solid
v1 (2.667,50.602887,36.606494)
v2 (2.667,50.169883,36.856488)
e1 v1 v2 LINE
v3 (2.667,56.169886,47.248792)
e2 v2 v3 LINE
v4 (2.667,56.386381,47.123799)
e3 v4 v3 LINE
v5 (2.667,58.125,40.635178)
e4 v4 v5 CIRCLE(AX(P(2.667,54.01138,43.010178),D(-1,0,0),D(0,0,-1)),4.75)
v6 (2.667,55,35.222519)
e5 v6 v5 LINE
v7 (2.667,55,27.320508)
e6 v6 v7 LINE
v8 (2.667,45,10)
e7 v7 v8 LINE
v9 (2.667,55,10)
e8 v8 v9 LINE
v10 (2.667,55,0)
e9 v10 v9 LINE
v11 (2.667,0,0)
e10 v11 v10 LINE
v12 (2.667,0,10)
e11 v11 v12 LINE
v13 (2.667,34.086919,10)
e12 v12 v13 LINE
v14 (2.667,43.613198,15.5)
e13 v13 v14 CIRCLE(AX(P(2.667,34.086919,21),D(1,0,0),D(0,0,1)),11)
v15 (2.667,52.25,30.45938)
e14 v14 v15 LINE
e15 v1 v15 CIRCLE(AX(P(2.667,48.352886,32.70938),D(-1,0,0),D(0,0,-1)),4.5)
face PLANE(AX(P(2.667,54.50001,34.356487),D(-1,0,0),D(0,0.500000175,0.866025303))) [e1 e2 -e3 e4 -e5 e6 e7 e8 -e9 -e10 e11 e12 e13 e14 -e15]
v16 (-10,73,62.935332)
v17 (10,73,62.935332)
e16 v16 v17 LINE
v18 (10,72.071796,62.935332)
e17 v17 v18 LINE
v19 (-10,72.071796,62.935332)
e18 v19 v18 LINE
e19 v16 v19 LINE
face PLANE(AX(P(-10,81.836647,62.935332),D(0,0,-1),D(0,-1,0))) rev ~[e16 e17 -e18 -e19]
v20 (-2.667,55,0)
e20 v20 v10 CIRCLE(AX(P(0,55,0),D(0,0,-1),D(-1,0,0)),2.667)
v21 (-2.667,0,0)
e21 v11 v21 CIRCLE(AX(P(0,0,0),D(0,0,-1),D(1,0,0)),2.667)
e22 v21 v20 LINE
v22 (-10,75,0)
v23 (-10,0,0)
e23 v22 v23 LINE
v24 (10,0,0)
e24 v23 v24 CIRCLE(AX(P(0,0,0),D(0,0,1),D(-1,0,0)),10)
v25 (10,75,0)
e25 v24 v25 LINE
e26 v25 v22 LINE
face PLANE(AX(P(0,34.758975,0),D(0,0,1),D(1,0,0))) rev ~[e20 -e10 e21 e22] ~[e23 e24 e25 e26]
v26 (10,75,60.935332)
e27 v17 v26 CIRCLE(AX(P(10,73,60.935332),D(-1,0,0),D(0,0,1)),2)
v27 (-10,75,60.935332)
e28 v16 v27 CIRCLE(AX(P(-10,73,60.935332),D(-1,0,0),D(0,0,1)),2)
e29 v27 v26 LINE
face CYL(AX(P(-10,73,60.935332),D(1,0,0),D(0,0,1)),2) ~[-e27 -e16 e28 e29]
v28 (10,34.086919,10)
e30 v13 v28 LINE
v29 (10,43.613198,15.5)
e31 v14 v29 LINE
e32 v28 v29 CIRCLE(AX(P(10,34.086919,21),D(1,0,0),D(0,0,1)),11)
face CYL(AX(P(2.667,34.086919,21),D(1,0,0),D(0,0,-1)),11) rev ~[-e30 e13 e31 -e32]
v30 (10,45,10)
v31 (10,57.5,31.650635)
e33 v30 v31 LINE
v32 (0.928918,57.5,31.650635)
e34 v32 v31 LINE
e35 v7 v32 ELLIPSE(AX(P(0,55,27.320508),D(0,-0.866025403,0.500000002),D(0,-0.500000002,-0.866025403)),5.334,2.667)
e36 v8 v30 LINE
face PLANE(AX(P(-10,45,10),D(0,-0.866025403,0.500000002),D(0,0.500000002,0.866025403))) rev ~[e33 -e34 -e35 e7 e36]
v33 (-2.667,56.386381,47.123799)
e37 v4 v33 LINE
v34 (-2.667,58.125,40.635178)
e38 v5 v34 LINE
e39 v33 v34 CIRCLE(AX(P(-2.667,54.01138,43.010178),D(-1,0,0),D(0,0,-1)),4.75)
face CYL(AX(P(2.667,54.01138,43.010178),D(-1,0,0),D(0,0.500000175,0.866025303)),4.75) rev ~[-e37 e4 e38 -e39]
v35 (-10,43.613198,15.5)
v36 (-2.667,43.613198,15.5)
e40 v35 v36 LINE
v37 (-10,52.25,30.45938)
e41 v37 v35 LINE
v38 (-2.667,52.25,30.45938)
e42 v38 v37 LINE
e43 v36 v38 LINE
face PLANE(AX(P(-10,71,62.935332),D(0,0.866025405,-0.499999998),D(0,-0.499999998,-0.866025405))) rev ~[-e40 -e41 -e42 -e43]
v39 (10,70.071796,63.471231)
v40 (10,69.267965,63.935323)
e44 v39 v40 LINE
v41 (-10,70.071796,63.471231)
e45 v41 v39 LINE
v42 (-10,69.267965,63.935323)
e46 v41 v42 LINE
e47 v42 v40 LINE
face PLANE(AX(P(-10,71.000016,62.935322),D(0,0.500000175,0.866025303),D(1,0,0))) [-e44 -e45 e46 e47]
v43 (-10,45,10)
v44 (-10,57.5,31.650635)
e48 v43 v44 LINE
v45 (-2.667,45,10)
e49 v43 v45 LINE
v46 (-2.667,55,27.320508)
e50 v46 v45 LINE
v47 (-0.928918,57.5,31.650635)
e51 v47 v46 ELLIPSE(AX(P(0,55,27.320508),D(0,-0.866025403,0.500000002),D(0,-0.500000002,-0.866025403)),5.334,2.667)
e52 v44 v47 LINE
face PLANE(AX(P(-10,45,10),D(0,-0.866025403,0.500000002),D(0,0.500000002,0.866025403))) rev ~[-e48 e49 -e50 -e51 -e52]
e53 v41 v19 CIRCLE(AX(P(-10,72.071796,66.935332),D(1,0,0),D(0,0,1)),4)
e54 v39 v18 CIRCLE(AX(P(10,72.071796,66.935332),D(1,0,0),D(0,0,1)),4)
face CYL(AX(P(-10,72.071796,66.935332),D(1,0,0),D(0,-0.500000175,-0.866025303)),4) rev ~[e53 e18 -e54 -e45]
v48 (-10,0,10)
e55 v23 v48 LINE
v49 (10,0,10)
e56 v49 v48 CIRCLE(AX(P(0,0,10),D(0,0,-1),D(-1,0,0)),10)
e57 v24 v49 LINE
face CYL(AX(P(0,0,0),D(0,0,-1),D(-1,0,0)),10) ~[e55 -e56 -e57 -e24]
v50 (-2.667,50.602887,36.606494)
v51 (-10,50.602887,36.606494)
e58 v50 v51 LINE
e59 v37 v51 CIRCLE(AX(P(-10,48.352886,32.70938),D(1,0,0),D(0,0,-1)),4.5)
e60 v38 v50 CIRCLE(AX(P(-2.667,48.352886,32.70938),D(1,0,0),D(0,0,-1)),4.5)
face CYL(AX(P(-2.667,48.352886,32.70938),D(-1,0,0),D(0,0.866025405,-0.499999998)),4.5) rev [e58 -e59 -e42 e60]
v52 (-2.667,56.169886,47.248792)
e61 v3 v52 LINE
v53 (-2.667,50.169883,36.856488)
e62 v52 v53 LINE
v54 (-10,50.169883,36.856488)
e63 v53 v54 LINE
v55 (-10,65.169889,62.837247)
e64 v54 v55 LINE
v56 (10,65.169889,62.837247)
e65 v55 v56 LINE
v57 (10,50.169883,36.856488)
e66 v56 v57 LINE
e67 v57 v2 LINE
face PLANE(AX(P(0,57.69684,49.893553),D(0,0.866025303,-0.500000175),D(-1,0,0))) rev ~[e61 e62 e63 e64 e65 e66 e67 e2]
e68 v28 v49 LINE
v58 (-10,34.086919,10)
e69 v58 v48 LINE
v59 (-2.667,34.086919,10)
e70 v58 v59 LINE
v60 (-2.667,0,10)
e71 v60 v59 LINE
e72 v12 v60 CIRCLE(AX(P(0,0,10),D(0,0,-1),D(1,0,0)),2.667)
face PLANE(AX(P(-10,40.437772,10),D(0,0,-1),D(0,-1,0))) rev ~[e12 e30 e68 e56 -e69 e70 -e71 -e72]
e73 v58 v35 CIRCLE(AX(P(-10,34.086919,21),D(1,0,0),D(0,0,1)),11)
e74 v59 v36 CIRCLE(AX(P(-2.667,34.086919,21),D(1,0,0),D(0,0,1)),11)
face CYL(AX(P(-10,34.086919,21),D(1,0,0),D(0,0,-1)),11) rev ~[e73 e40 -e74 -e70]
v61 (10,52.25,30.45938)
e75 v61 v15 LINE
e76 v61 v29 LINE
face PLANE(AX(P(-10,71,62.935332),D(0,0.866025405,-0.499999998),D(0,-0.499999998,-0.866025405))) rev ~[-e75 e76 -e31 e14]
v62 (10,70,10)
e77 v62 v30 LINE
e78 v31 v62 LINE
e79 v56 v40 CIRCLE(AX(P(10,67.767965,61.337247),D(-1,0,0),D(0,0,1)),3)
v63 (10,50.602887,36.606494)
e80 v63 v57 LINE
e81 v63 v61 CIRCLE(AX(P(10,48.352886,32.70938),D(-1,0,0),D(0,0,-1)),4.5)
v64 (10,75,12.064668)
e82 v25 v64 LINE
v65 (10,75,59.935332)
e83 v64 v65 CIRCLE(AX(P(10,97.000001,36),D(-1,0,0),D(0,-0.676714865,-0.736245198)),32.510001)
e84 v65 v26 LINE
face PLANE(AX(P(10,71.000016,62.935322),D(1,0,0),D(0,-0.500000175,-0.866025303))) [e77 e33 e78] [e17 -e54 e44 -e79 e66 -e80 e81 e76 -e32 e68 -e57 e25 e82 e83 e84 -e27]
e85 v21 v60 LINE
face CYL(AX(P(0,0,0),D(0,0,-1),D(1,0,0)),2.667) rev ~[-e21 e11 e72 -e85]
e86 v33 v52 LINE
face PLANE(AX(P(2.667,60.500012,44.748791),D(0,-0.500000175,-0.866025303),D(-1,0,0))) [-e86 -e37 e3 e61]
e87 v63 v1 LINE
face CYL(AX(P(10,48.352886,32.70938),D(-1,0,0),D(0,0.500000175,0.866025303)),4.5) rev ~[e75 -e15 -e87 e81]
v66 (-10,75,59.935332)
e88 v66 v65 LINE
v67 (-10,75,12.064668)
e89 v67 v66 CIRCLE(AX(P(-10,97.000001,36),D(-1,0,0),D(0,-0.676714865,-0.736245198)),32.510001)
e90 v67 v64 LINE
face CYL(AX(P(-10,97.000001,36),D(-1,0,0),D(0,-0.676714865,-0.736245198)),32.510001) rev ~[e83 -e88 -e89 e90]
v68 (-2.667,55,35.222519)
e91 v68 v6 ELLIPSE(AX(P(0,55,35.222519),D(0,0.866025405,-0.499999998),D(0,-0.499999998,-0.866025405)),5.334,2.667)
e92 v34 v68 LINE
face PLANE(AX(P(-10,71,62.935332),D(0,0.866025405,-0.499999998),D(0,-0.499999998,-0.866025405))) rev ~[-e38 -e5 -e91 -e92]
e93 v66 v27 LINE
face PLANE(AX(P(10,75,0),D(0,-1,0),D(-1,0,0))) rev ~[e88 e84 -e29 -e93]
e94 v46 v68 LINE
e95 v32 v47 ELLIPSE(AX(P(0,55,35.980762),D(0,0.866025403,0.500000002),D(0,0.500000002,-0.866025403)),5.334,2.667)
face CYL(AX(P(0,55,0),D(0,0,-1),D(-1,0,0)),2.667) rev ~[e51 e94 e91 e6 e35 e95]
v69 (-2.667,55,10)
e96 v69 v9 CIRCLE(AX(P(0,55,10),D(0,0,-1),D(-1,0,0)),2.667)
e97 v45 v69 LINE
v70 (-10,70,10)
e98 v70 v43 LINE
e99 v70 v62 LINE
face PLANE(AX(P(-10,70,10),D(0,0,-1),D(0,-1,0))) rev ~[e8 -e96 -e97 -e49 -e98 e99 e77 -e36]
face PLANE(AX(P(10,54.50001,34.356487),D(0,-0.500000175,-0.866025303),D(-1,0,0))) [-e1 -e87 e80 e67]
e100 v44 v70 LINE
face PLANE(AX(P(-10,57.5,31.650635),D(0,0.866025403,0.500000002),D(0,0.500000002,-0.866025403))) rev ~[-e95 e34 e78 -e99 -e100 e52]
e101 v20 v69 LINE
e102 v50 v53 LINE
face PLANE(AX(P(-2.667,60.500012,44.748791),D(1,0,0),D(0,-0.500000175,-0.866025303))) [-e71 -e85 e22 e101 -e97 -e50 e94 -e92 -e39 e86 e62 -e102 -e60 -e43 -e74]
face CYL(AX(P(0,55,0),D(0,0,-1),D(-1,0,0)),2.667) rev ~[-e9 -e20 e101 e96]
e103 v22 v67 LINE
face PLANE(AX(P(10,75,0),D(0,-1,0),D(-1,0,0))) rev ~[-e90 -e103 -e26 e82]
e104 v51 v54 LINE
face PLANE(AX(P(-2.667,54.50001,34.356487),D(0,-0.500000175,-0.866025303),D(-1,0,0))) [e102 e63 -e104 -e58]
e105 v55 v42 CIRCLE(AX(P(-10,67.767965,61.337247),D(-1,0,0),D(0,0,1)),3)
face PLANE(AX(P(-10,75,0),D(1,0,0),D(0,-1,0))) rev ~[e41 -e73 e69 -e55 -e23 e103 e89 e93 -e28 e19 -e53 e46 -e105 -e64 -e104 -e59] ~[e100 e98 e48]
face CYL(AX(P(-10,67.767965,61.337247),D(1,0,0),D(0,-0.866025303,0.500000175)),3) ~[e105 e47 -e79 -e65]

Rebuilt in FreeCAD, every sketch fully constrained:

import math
import FreeCAD as App
import Part
import Sketcher

V = App.Vector
Q = App.Units.Quantity


def edges_at(feature, points):
    """Names of the edges that pass closest to the given points."""
    edges = feature.Shape.Edges
    near = lambda p: min(range(len(edges)), key=lambda i: edges[i].distToShape(Part.Vertex(*p))[0])
    return sorted({f"Edge{near(p) + 1}" for p in points})

doc = App.newDocument("Part")
body = doc.addObject("PartDesign::Body", "Body")

sketch1 = body.newObject("Sketcher::SketchObject", "Sketch")
sketch1.AttachmentSupport = (doc.getObject("XY_Plane"), [""])
sketch1.MapMode = "FlatFace"
sketch1.addGeometry([
    Part.LineSegment(V(-10, 75, 0), V(-10, 0, 0)),
    Part.ArcOfCircle(Part.Circle(V(0, 0, 0), V(0, 0, 1), 10), math.radians(180), math.radians(360)),
    Part.LineSegment(V(10, 0, 0), V(10, 75, 0)),
    Part.LineSegment(V(10, 75, 0), V(-10, 75, 0)),
], False)
sketch1.addConstraint([
    Sketcher.Constraint("Tangent", 0, 2, 1, 1),
    Sketcher.Constraint("Tangent", 1, 2, 2, 1),
    Sketcher.Constraint("Coincident", 2, 2, 3, 1),
    Sketcher.Constraint("Coincident", 3, 2, 0, 1),
    Sketcher.Constraint("Vertical", 0),
    Sketcher.Constraint("Vertical", 2),
    Sketcher.Constraint("Horizontal", 3),
    Sketcher.Constraint("Coincident", 1, 3, -1, 1),
    Sketcher.Constraint("Radius", 1, 10.0),
    Sketcher.Constraint("DistanceY", 0, 2, 0, 1, 75.0),
])
pad1 = body.newObject("PartDesign::Pad", "Pad")
pad1.Profile = sketch1
pad1.Length = 67.31

sketch2 = body.newObject("Sketcher::SketchObject", "Sketch001")
sketch2.AttachmentSupport = (doc.getObject("YZ_Plane"), [""])
sketch2.MapMode = "FlatFace"
sketch2.AttachmentOffset = App.Placement(V(0, 0, -10), App.Rotation())
sketch2.addGeometry([
    Part.LineSegment(V(71, 63, 0), V(40, 10, 0)),
    Part.LineSegment(V(40, 10, 0), V(-27, 10, 0)),
    Part.LineSegment(V(-27, 10, 0), V(-27, 74, 0)),
    Part.LineSegment(V(-27, 74, 0), V(82, 74, 0)),
    Part.LineSegment(V(82, 74, 0), V(82, 63, 0)),
    Part.LineSegment(V(82, 63, 0), V(71, 63, 0)),
    Part.ArcOfCircle(Part.Circle(V(97, 36, 0), V(0, 0, 1), 33), math.radians(133), math.radians(227)),
    Part.LineSegment(V(75, 60, 0), V(97, 36, 0)),
    Part.LineSegment(V(97, 36, 0), V(75, 12, 0)),
    Part.LineSegment(V(70, 10, 0), V(45, 10, 0)),
    Part.LineSegment(V(45, 10, 0), V(58, 32, 0)),
    Part.LineSegment(V(58, 32, 0), V(70, 10, 0)),
], False)
sketch2.addConstraint([
    Sketcher.Constraint("Coincident", 0, 2, 1, 1),
    Sketcher.Constraint("Coincident", 1, 2, 2, 1),
    Sketcher.Constraint("Coincident", 2, 2, 3, 1),
    Sketcher.Constraint("Coincident", 3, 2, 4, 1),
    Sketcher.Constraint("Coincident", 4, 2, 5, 1),
    Sketcher.Constraint("Coincident", 5, 2, 0, 1),
    Sketcher.Constraint("Coincident", 6, 1, 7, 1),
    Sketcher.Constraint("Coincident", 7, 2, 8, 1),
    Sketcher.Constraint("Coincident", 8, 2, 6, 2),
    Sketcher.Constraint("Coincident", 9, 2, 10, 1),
    Sketcher.Constraint("Coincident", 10, 2, 11, 1),
    Sketcher.Constraint("Coincident", 11, 2, 9, 1),
    Sketcher.Constraint("Horizontal", 1),
    Sketcher.Constraint("Vertical", 2),
    Sketcher.Constraint("Horizontal", 3),
    Sketcher.Constraint("Vertical", 4),
    Sketcher.Constraint("Horizontal", 5),
    Sketcher.Constraint("Horizontal", 9),
    Sketcher.Constraint("Coincident", 7, 2, 6, 3),
    Sketcher.Constraint("Parallel", 0, 10),
    Sketcher.Constraint("Horizontal", 1, 2, 9, 2),
    Sketcher.Constraint("Vertical", 6, 1, 8, 2),
    Sketcher.Constraint("Equal", 10, 11),
    Sketcher.Constraint("DistanceX", 9, 2, 9, 1, 25.0),
    Sketcher.Constraint("Angle", 0, Q("-120 deg")),
    Sketcher.Constraint("Radius", 6, 32.510001),
    Sketcher.Constraint("DistanceX", -1, 1, 6, 3, 97.000001),
    Sketcher.Constraint("DistanceY", -1, 1, 6, 3, 36.0),
    Sketcher.Constraint("DistanceY", -1, 1, 0, 2, 10.0),
    Sketcher.Constraint("DistanceX", -1, 1, 5, 2, 71.0),
    Sketcher.Constraint("DistanceX", -1, 1, 6, 1, 75.0),
    Sketcher.Constraint("DistanceX", -1, 1, 9, 2, 45.0),
    Sketcher.Constraint("DistanceY", 6, 1, 5, 2, 3.0),
    Sketcher.Constraint("DistanceX", 3, 1, 3, 2, 108.783571),
    Sketcher.Constraint("DistanceY", 2, 1, 2, 2, 64.479118),
    Sketcher.Constraint("DistanceX", 1, 2, 1, 1, 67.384696),
])
pocket1 = body.newObject("PartDesign::Pocket", "Pocket")
pocket1.Profile = sketch2
pocket1.Type = "ThroughAll"
pocket1.Reversed = True

sketch3 = body.newObject("Sketcher::SketchObject", "Sketch002")
sketch3.AttachmentSupport = (doc.getObject("XY_Plane"), [""])
sketch3.MapMode = "FlatFace"
sketch3.addGeometry([
    Part.ArcOfCircle(Part.Circle(V(0, 0, 0), V(0, 0, 1), 2.7), math.radians(180), math.radians(360)),
    Part.LineSegment(V(-2.7, 0, 0), V(-2.7, 55, 0)),
    Part.ArcOfCircle(Part.Circle(V(0, 55, 0), V(0, 0, 1), 2.7), math.radians(0), math.radians(180)),
    Part.LineSegment(V(2.7, 55, 0), V(2.7, 0, 0)),
], False)
sketch3.addConstraint([
    Sketcher.Constraint("Tangent", 0, 1, 1, 1),
    Sketcher.Constraint("Tangent", 1, 2, 2, 2),
    Sketcher.Constraint("Tangent", 2, 1, 3, 1),
    Sketcher.Constraint("Tangent", 3, 2, 0, 2),
    Sketcher.Constraint("Vertical", 1),
    Sketcher.Constraint("Vertical", 3),
    Sketcher.Constraint("Coincident", 0, 3, -1, 1),
    Sketcher.Constraint("DistanceY", 1, 1, 1, 2, 55.0),
    Sketcher.Constraint("Radius", 0, 2.667),
])
pocket2 = body.newObject("PartDesign::Pocket", "Pocket001")
pocket2.Profile = sketch3
pocket2.Type = "ThroughAll"
pocket2.Reversed = True
doc.recompute()

fillet = body.newObject("PartDesign::Fillet", "Fillet")
fillet.Base = (pocket2, edges_at(pocket2, [(6.333, 40.438, 10), (-6.333, 40.438, 10)]))
fillet.Radius = 11

sketch4 = body.newObject("Sketcher::SketchObject", "Sketch003")
sketch4.Placement = App.Placement(V(0, 25.998202, -15.010069), App.Rotation(V(1, 0, 0), V(0, 0.500000175, 0.866025303), V(0, -0.866025303, 0.500000175), "ZXY"))
sketch4.addGeometry([
    Part.LineSegment(V(10, 90, 0), V(-10, 90, 0)),
    Part.LineSegment(V(-10, 90, 0), V(-10, 57, 0)),
    Part.LineSegment(V(-10, 57, 0), V(-3, 57, 0)),
    Part.LineSegment(V(-3, 57, 0), V(-3, 69, 0)),
    Part.LineSegment(V(-3, 69, 0), V(3, 69, 0)),
    Part.LineSegment(V(3, 69, 0), V(3, 57, 0)),
    Part.LineSegment(V(3, 57, 0), V(10, 57, 0)),
    Part.LineSegment(V(10, 57, 0), V(10, 90, 0)),
], False)
sketch4.addConstraint([
    Sketcher.Constraint("Coincident", 0, 2, 1, 1),
    Sketcher.Constraint("Coincident", 1, 2, 2, 1),
    Sketcher.Constraint("Coincident", 2, 2, 3, 1),
    Sketcher.Constraint("Coincident", 3, 2, 4, 1),
    Sketcher.Constraint("Coincident", 4, 2, 5, 1),
    Sketcher.Constraint("Coincident", 5, 2, 6, 1),
    Sketcher.Constraint("Coincident", 6, 2, 7, 1),
    Sketcher.Constraint("Coincident", 7, 2, 0, 1),
    Sketcher.Constraint("Horizontal", 0),
    Sketcher.Constraint("Vertical", 1),
    Sketcher.Constraint("Horizontal", 2),
    Sketcher.Constraint("Vertical", 3),
    Sketcher.Constraint("Horizontal", 4),
    Sketcher.Constraint("Vertical", 5),
    Sketcher.Constraint("Horizontal", 6),
    Sketcher.Constraint("Vertical", 7),
    Sketcher.Constraint("Symmetric", 2, 2, 5, 2, -2),
    Sketcher.Constraint("Equal", 2, 6),
    Sketcher.Constraint("DistanceX", 0, 2, 0, 1, 20.0),
    Sketcher.Constraint("DistanceY", 1, 2, 1, 1, 33.0),
    Sketcher.Constraint("DistanceY", 3, 1, 3, 2, 12.0),
    Sketcher.Constraint("DistanceX", 2, 1, 2, 2, 7.333),
    Sketcher.Constraint("DistanceY", -1, 1, 0, 2, 90.003596),
])
pad2 = body.newObject("PartDesign::Pad", "Pad001")
pad2.Profile = sketch4
pad2.Length = 5
doc.recompute()

fillet2 = body.newObject("PartDesign::Fillet", "Fillet001")
fillet2.Base = (pad2, edges_at(pad2, [(6.333, 54.5, 34.356), (-6.333, 54.5, 34.356)]))
fillet2.Radius = 4.5
doc.recompute()

fillet3 = body.newObject("PartDesign::Fillet", "Fillet002")
fillet3.Base = (fillet2, edges_at(fillet2, [(0, 60.5, 44.749)]))
fillet3.Radius = 4.75
doc.recompute()

fillet4 = body.newObject("PartDesign::Fillet", "Fillet003")
fillet4.Base = (fillet3, edges_at(fillet3, [(0, 66.67, 65.435)]))
fillet4.Radius = 3
doc.recompute()

fillet5 = body.newObject("PartDesign::Fillet", "Fillet004")
fillet5.Base = (fillet4, edges_at(fillet4, [(0, 71, 62.935)]))
fillet5.Radius = 4
doc.recompute()

fillet6 = body.newObject("PartDesign::Fillet", "Fillet005")
fillet6.Base = (fillet5, edges_at(fillet5, [(0, 75, 62.935)]))
fillet6.Radius = 2

doc.recompute()
